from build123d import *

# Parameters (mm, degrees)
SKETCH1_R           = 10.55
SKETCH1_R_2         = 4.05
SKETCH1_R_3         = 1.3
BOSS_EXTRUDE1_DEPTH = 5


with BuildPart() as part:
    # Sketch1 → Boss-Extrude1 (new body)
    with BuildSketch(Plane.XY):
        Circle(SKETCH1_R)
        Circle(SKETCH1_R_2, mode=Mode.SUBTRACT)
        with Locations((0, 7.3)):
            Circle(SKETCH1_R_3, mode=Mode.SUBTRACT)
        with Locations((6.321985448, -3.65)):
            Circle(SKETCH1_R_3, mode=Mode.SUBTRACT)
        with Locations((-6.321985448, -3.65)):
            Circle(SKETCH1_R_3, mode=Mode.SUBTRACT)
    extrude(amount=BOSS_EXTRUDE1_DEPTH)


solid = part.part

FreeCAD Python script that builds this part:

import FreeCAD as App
import Part
import Sketcher
Q = App.Units.Quantity

doc = App.newDocument("Part")
body = doc.addObject("PartDesign::Body", "Body")

sketch1 = body.newObject("Sketcher::SketchObject", "Sketch")
sketch1.AttachmentSupport = (doc.getObject("XY_Plane"), [""])
sketch1.MapMode = "FlatFace"
sketch1.addGeometry([
    Part.Circle(App.Vector(0, 0, 0), App.Vector(0, 0, 1), 10.6),
    Part.Circle(App.Vector(-6.3, -3.6, 0), App.Vector(0, 0, 1), 1.3),
    Part.Circle(App.Vector(6.3, -3.6, 0), App.Vector(0, 0, 1), 1.3),
    Part.Circle(App.Vector(0, 0, 0), App.Vector(0, 0, 1), 4),
    Part.Circle(App.Vector(0, 7.3, 0), App.Vector(0, 0, 1), 1.3),
], False)
sketch1.addConstraint([
    Sketcher.Constraint("Coincident", 0, 3, -1, 1),
    Sketcher.Constraint("Coincident", 3, 3, -1, 1),
    Sketcher.Constraint("Equal", 1, 2),
    Sketcher.Constraint("Equal", 2, 4),
    Sketcher.Constraint("Symmetric", 1, 3, 2, 3, -2),
    Sketcher.Constraint("PointOnObject", 4, 3, -2),
    Sketcher.Constraint("Diameter", 0, Q("21.1 mm")),
    Sketcher.Constraint("Diameter", 1, Q("2.6 mm")),
    Sketcher.Constraint("Diameter", 3, Q("8.1 mm")),
    Sketcher.Constraint("DistanceY", -1, 1, 4, 3, Q("7.3 mm")),
    Sketcher.Constraint("DistanceY", 1, 3, -1, 1, Q("3.65 mm")),
    Sketcher.Constraint("DistanceX", 1, 3, 2, 3, Q("12.643971 mm")),
])
pad1 = body.newObject("PartDesign::Pad", "Pad")
pad1.Profile = sketch1
pad1.Length = 5

doc.recompute()
